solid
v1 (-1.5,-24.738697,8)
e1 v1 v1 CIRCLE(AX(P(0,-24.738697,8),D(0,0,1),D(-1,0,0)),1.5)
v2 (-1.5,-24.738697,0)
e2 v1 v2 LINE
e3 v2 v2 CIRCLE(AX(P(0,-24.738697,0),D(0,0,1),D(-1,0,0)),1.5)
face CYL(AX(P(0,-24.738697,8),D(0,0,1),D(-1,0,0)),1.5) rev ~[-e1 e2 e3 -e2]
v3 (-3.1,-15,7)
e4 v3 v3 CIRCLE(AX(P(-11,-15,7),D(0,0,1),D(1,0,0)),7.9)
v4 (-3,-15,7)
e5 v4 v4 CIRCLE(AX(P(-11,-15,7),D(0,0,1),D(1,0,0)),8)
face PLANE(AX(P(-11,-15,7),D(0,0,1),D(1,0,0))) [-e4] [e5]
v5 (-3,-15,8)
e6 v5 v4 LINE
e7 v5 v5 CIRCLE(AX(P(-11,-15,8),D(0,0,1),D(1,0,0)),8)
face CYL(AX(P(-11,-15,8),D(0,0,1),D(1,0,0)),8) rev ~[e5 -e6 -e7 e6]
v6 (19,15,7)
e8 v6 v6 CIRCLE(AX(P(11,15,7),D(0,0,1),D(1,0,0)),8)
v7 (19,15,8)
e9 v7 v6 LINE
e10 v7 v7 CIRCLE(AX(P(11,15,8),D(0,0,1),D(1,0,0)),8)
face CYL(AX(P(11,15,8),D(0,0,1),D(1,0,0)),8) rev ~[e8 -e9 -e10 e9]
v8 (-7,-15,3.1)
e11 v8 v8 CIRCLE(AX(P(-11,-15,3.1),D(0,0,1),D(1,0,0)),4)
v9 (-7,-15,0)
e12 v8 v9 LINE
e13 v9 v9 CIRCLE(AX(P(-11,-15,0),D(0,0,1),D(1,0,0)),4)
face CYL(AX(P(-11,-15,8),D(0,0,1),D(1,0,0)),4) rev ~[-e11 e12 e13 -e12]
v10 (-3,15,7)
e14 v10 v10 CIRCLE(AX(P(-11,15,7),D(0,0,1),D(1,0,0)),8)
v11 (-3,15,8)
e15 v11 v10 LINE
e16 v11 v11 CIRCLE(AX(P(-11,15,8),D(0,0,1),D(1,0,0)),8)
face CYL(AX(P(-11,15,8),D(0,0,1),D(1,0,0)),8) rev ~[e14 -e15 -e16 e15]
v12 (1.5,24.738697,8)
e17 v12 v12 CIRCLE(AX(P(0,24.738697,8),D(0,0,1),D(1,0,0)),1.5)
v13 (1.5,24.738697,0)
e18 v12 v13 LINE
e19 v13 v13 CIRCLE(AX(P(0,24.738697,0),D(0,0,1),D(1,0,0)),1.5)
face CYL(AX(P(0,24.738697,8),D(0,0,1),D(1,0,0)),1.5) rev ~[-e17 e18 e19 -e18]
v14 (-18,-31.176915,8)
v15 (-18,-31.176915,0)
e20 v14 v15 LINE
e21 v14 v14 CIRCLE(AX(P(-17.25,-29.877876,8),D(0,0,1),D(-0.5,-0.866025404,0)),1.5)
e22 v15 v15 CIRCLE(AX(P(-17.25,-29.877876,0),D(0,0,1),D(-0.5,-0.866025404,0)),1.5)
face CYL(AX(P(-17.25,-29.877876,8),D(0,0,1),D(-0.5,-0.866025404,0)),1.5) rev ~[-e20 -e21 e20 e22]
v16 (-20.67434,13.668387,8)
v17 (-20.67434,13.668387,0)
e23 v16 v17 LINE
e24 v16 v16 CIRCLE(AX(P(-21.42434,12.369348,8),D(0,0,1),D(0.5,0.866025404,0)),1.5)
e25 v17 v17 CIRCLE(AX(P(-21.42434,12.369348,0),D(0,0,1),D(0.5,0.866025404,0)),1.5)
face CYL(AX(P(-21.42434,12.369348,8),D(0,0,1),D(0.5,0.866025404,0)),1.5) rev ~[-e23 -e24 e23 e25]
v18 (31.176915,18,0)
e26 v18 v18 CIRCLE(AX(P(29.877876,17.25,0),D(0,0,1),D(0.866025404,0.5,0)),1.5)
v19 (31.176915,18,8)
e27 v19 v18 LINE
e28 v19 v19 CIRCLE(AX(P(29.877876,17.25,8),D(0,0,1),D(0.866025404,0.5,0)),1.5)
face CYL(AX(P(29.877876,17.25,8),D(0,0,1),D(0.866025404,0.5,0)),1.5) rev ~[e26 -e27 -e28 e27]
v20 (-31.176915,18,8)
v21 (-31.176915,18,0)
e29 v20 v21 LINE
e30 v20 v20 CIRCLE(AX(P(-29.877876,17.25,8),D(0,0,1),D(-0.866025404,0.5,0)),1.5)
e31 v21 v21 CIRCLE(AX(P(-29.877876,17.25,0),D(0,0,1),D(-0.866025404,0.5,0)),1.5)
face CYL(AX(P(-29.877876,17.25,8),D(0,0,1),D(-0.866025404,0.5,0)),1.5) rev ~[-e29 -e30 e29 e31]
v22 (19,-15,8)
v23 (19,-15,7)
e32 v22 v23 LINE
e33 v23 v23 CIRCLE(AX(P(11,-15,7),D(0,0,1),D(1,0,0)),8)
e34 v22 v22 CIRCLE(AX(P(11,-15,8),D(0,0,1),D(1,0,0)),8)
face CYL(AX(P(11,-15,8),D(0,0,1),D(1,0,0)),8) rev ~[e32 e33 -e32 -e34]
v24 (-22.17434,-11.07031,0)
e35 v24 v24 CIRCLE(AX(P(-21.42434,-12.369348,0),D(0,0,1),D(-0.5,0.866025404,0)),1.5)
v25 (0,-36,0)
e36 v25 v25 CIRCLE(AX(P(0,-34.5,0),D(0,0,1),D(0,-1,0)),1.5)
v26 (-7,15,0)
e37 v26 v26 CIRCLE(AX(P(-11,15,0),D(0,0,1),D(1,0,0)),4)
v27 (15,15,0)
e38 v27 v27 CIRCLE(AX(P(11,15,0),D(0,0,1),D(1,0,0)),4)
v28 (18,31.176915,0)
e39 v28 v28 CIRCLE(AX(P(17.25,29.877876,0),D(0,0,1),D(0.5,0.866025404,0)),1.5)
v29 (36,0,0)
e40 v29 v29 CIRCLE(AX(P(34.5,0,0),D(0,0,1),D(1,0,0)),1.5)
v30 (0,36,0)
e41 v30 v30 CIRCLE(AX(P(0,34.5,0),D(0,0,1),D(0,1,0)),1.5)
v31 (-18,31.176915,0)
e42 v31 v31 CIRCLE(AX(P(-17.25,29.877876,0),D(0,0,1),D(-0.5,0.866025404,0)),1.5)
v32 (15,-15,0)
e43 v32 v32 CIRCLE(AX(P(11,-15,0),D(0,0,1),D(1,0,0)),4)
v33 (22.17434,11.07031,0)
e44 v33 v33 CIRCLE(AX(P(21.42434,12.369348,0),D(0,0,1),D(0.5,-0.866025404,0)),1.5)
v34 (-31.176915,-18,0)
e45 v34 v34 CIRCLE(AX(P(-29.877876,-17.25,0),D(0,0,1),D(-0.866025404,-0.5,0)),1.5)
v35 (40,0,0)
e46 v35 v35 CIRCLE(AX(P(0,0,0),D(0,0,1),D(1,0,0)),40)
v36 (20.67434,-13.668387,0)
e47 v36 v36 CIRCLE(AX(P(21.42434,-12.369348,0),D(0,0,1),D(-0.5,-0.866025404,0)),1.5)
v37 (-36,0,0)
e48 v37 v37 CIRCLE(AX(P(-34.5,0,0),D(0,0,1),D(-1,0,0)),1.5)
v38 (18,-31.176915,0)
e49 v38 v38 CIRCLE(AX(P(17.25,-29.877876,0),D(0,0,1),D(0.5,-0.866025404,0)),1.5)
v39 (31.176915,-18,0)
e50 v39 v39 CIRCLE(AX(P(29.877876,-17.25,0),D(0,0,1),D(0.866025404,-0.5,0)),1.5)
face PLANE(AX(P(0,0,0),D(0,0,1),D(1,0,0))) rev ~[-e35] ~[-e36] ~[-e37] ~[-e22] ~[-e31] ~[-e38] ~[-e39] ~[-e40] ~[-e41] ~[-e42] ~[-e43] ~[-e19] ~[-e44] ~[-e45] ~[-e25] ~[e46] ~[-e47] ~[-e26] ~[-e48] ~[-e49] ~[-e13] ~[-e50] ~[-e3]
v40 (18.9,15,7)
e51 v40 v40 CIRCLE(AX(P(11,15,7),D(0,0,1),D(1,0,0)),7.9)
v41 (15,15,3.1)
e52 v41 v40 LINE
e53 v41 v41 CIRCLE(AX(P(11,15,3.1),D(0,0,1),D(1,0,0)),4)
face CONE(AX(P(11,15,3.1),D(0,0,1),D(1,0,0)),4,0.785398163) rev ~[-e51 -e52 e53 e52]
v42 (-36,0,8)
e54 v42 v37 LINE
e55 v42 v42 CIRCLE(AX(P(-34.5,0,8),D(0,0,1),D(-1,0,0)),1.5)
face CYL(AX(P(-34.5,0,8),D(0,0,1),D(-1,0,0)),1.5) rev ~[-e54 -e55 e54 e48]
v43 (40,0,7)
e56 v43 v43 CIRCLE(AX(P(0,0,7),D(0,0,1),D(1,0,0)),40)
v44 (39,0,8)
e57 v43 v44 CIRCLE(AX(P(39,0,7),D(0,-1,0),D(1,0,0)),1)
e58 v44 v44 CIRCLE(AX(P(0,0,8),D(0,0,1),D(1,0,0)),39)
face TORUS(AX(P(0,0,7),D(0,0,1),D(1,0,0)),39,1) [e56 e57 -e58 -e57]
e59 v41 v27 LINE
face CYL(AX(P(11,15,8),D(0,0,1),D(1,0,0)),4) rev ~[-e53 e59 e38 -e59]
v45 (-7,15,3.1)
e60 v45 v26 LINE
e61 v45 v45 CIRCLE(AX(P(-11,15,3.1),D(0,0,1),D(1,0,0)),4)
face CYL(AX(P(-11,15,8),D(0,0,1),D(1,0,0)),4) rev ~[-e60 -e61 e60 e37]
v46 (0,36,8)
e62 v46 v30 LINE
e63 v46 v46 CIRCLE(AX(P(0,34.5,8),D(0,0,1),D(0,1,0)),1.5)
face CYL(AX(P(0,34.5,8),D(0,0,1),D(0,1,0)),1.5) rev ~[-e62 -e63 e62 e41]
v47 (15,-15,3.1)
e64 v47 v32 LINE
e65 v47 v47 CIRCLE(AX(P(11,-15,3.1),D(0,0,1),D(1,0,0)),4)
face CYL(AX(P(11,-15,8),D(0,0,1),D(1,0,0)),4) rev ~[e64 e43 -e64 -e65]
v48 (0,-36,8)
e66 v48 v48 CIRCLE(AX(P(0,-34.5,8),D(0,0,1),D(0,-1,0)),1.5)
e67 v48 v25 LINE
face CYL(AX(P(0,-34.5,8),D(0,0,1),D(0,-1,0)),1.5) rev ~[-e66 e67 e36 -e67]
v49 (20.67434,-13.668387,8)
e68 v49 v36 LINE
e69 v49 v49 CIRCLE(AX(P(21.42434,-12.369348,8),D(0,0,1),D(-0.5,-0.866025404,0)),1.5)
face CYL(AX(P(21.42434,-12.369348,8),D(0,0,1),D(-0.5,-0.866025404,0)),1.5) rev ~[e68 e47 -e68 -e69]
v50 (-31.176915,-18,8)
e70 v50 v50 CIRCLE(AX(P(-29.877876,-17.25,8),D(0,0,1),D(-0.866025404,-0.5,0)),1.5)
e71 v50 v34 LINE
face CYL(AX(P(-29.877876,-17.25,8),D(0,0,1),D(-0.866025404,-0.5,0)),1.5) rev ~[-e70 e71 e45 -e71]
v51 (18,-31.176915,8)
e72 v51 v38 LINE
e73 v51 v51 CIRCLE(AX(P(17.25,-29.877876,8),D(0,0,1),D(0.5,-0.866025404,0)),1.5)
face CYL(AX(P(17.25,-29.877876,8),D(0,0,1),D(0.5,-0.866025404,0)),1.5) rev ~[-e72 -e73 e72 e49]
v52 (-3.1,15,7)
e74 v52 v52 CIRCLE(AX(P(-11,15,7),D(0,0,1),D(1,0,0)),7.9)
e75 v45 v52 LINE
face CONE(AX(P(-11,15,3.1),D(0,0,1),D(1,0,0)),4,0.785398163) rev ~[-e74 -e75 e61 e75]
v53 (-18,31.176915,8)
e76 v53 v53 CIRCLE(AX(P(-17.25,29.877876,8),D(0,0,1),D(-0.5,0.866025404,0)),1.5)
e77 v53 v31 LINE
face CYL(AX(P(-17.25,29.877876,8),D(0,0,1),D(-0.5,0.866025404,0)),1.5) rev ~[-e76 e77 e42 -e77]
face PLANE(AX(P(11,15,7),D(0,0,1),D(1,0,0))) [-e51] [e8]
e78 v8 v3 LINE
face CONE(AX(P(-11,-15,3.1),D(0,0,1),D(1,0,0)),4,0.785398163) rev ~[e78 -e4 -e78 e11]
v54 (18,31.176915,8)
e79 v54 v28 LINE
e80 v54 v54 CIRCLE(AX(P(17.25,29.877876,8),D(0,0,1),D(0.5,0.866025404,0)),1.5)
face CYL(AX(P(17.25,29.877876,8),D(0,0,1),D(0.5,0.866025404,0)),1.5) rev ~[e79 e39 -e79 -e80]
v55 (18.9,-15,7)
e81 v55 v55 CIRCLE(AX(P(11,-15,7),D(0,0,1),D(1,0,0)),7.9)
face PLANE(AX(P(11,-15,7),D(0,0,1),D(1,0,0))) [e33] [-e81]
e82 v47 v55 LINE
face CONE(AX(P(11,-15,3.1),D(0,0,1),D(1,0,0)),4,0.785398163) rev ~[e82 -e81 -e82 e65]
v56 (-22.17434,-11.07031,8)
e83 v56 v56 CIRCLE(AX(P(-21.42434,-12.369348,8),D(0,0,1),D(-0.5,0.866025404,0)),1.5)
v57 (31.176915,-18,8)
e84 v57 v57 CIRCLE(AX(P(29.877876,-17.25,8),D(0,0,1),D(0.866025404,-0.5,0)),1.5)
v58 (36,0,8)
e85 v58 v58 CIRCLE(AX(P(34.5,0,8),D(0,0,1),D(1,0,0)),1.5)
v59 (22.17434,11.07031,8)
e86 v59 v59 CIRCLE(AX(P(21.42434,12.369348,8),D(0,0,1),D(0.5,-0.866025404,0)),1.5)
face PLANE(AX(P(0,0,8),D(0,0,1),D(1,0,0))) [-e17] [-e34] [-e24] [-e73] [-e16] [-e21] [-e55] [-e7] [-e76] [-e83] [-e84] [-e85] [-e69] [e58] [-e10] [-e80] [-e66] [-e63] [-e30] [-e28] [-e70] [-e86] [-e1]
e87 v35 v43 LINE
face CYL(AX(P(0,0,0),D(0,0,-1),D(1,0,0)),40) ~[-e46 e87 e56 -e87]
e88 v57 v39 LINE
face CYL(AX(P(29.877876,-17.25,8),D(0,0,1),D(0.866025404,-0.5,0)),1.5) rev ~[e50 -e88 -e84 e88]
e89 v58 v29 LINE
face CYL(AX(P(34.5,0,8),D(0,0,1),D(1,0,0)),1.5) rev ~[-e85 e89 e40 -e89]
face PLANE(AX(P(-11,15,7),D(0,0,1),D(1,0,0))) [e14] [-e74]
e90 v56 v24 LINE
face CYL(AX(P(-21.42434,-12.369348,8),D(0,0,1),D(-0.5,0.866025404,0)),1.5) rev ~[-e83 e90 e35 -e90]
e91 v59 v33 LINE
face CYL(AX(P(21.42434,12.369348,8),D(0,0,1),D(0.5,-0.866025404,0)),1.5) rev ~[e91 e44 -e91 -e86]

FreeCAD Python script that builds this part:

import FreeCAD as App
import Part
import Sketcher
from FreeCAD import Vector
Q = App.Units.Quantity


def edges_at(feature, points):
    """Names of the edges that pass closest to the given points."""
    edges = feature.Shape.Edges
    near = lambda p: min(range(len(edges)), key=lambda i: edges[i].distToShape(Part.Vertex(*p))[0])
    return sorted({f"Edge{near(p) + 1}" for p in points})

doc = App.newDocument("Part")
body = doc.addObject("PartDesign::Body", "Body")

sketch1 = body.newObject("Sketcher::SketchObject", "Sketch")
sketch1.AttachmentSupport = (doc.getObject("XY_Plane"), [""])
sketch1.MapMode = "FlatFace"
sketch1.addGeometry(Part.Circle(Vector(0, 0, 0), Vector(0, 0, 1), 40), False)
sketch1.addConstraint(Sketcher.Constraint("Coincident", 0, 3, -1, 1))
sketch1.addConstraint(Sketcher.Constraint("Diameter", 0, Q("80 mm")))
pad1 = body.newObject("PartDesign::Pad", "Pad")
pad1.Profile = sketch1
pad1.Length = 8

sketch2 = body.newObject("Sketcher::SketchObject", "Sketch001")
sketch2.AttachmentSupport = (doc.getObject("XY_Plane"), [""])
sketch2.MapMode = "FlatFace"
sketch2.AttachmentOffset = App.Placement(Vector(0, 0, 8), App.Rotation())
sketch2.addGeometry(Part.Circle(Vector(34.5, 0, 0), Vector(0, 0, 1), 1.5), False)
sketch2.addConstraint(Sketcher.Constraint("PointOnObject", 0, 3, -1))
sketch2.addConstraint(Sketcher.Constraint("Diameter", 0, Q("3 mm")))
sketch2.addConstraint(Sketcher.Constraint("DistanceX", -1, 1, 0, 3, Q("34.5 mm")))
pocket1 = body.newObject("PartDesign::Pocket", "Pocket")
pocket1.Profile = sketch2
pocket1.Type = "ThroughAll"
doc.recompute()

polarpattern = body.newObject("PartDesign::PolarPattern", "PolarPattern")
polarpattern.Originals = [pocket1]
polarpattern.Axis = (doc.getObject("Z_Axis"), [""])
polarpattern.Angle = 360
polarpattern.Occurrences = 12
body.Tip = polarpattern

sketch3 = body.newObject("Sketcher::SketchObject", "Sketch002")
sketch3.AttachmentSupport = (doc.getObject("XY_Plane"), [""])
sketch3.MapMode = "FlatFace"
sketch3.AttachmentOffset = App.Placement(Vector(0, 0, 8), App.Rotation())
sketch3.addGeometry(Part.Circle(Vector(11, 15, 0), Vector(0, 0, 1), 4), False)
sketch3.addGeometry(Part.Circle(Vector(11, -15, 0), Vector(0, 0, 1), 4), False)
sketch3.addGeometry(Part.Circle(Vector(-11, -15, 0), Vector(0, 0, 1), 4), False)
sketch3.addGeometry(Part.Circle(Vector(-11, 15, 0), Vector(0, 0, 1), 4), False)
sketch3.addConstraint(Sketcher.Constraint("Equal", 0, 1))
sketch3.addConstraint(Sketcher.Constraint("Equal", 1, 2))
sketch3.addConstraint(Sketcher.Constraint("Equal", 2, 3))
sketch3.addConstraint(Sketcher.Constraint("Symmetric", 0, 3, 2, 3, -1, 1))
sketch3.addConstraint(Sketcher.Constraint("Symmetric", 1, 3, 3, 3, -1, 1))
sketch3.addConstraint(Sketcher.Constraint("Symmetric", 1, 3, 2, 3, -2))
sketch3.addConstraint(Sketcher.Constraint("Diameter", 0, Q("8 mm")))
sketch3.addConstraint(Sketcher.Constraint("DistanceX", -1, 1, 0, 3, Q("11 mm")))
sketch3.addConstraint(Sketcher.Constraint("DistanceY", -1, 1, 0, 3, Q("15 mm")))
pocket2 = body.newObject("PartDesign::Pocket", "Pocket001")
pocket2.Profile = sketch3
pocket2.Type = "ThroughAll"

sketch4 = body.newObject("Sketcher::SketchObject", "Sketch003")
sketch4.AttachmentSupport = (doc.getObject("XY_Plane"), [""])
sketch4.MapMode = "FlatFace"
sketch4.AttachmentOffset = App.Placement(Vector(0, 0, 8), App.Rotation())
sketch4.addGeometry(Part.Circle(Vector(11, 15, 0), Vector(0, 0, 1), 8), False)
sketch4.addGeometry(Part.Circle(Vector(-11, 15, 0), Vector(0, 0, 1), 8), False)
sketch4.addGeometry(Part.Circle(Vector(-11, -15, 0), Vector(0, 0, 1), 8), False)
sketch4.addGeometry(Part.Circle(Vector(11, -15, 0), Vector(0, 0, 1), 8), False)
sketch4.addConstraint(Sketcher.Constraint("Equal", 0, 1))
sketch4.addConstraint(Sketcher.Constraint("Equal", 1, 2))
sketch4.addConstraint(Sketcher.Constraint("Equal", 2, 3))
sketch4.addConstraint(Sketcher.Constraint("Symmetric", 0, 3, 2, 3, -1, 1))
sketch4.addConstraint(Sketcher.Constraint("Symmetric", 1, 3, 3, 3, -1, 1))
sketch4.addConstraint(Sketcher.Constraint("Symmetric", 0, 3, 1, 3, -2))
sketch4.addConstraint(Sketcher.Constraint("Diameter", 0, Q("16 mm")))
sketch4.addConstraint(Sketcher.Constraint("DistanceX", -1, 1, 0, 3, Q("11 mm")))
sketch4.addConstraint(Sketcher.Constraint("DistanceY", -1, 1, 0, 3, Q("15 mm")))
pocket3 = body.newObject("PartDesign::Pocket", "Pocket002")
pocket3.Profile = sketch4
pocket3.Length = 1

sketch5 = body.newObject("Sketcher::SketchObject", "Sketch004")
sketch5.AttachmentSupport = (doc.getObject("XY_Plane"), [""])
sketch5.MapMode = "FlatFace"
sketch5.AttachmentOffset = App.Placement(Vector(0, 0, 8), App.Rotation())
sketch5.addGeometry(Part.Circle(Vector(0, 24.7, 0), Vector(0, 0, 1), 1.5), False)
sketch5.addConstraint(Sketcher.Constraint("PointOnObject", 0, 3, -2))
sketch5.addConstraint(Sketcher.Constraint("Diameter", 0, Q("3 mm")))
sketch5.addConstraint(Sketcher.Constraint("DistanceY", -1, 1, 0, 3, Q("24.738697 mm")))
pocket4 = body.newObject("PartDesign::Pocket", "Pocket003")
pocket4.Profile = sketch5
pocket4.Type = "ThroughAll"
doc.recompute()

polarpattern2 = body.newObject("PartDesign::PolarPattern", "PolarPattern001")
polarpattern2.Originals = [pocket4]
polarpattern2.Axis = (doc.getObject("Z_Axis"), [""])
polarpattern2.Angle = 360
polarpattern2.Occurrences = 6
body.Tip = polarpattern2
doc.recompute()

fillet = body.newObject("PartDesign::Fillet", "Fillet")
fillet.Base = (polarpattern2, edges_at(polarpattern2, [(-40, 0, 8)]))
fillet.Radius = 1
doc.recompute()

chamfer = body.newObject("PartDesign::Chamfer", "Chamfer")
chamfer.Base = (fillet, edges_at(fillet, [(-15, 15, 7)]))
chamfer.Size = 3.9
doc.recompute()

chamfer2 = body.newObject("PartDesign::Chamfer", "Chamfer001")
chamfer2.Base = (chamfer, edges_at(chamfer, [(7, 15, 7)]))
chamfer2.Size = 3.9
doc.recompute()

chamfer3 = body.newObject("PartDesign::Chamfer", "Chamfer002")
chamfer3.Base = (chamfer2, edges_at(chamfer2, [(-15, -15, 7)]))
chamfer3.Size = 3.9
doc.recompute()

chamfer4 = body.newObject("PartDesign::Chamfer", "Chamfer003")
chamfer4.Base = (chamfer3, edges_at(chamfer3, [(7, -15, 7)]))
chamfer4.Size = 3.9

doc.recompute()
